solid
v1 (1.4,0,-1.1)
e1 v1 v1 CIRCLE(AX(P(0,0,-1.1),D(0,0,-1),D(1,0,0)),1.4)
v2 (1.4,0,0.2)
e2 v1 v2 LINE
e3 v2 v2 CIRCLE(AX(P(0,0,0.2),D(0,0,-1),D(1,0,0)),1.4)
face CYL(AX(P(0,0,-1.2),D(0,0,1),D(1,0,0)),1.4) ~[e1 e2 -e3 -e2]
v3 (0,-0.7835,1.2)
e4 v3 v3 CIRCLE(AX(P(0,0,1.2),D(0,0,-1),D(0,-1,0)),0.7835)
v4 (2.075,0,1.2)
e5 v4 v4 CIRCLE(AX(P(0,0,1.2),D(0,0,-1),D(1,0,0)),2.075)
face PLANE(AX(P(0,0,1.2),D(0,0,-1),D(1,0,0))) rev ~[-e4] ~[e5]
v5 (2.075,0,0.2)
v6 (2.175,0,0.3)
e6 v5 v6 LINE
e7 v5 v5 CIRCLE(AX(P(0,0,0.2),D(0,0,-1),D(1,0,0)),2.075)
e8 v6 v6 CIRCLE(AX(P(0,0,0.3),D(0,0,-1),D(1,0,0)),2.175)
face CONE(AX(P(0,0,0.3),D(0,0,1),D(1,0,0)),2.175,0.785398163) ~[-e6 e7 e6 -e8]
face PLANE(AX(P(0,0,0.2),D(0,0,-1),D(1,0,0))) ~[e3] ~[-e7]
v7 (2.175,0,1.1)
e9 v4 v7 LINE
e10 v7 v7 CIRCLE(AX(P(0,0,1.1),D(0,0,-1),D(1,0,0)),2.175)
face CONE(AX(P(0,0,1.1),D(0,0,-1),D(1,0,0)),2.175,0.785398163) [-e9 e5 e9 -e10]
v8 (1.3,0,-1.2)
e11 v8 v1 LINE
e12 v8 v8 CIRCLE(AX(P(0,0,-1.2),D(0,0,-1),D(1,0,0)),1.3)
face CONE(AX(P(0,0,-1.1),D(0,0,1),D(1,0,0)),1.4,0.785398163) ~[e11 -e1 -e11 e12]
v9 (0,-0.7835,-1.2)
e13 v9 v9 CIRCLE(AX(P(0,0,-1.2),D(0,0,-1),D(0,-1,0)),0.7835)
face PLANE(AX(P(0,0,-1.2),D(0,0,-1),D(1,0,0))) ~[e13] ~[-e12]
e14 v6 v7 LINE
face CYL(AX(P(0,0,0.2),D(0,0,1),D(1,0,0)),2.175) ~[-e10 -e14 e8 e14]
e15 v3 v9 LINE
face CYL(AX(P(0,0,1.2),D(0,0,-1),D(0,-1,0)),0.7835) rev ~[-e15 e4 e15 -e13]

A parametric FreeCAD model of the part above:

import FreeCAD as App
import Part
import Sketcher
from FreeCAD import Vector


def edges_at(feature, points):
    """Names of the edges that pass closest to the given points."""
    edges = feature.Shape.Edges
    near = lambda p: min(range(len(edges)), key=lambda i: edges[i].distToShape(Part.Vertex(*p))[0])
    return sorted({f"Edge{near(p) + 1}" for p in points})

doc = App.newDocument("Part")
body = doc.addObject("PartDesign::Body", "Body")

# Sketch on XZ plane
sketch1 = doc.addObject("Sketcher::SketchObject", "Sketch")
body.addObject(sketch1)
sketch1.AttachmentSupport = (doc.XZ_Plane, [""])
sketch1.MapMode = "FlatFace"
sketch1.addGeometry([
    Part.LineSegment(Vector(0, -1.2, 0), Vector(0, 1.2, 0)),  # 0
    Part.LineSegment(Vector(0, 1.2, 0), Vector(2.2, 1.2, 0)),  # 1
    Part.LineSegment(Vector(2.2, 1.2, 0), Vector(2.2, 0.2, 0)),  # 2
    Part.LineSegment(Vector(2.2, 0.2, 0), Vector(1.4, 0.2, 0)),  # 3
    Part.LineSegment(Vector(1.4, 0.2, 0), Vector(1.4, -1.2, 0)),  # 4
    Part.LineSegment(Vector(1.4, -1.2, 0), Vector(0, -1.2, 0)),  # 5
], False)
sketch1.addConstraint([
    Sketcher.Constraint("Coincident", 0, 2, 1, 1),
    Sketcher.Constraint("Coincident", 1, 2, 2, 1),
    Sketcher.Constraint("Coincident", 2, 2, 3, 1),
    Sketcher.Constraint("Coincident", 3, 2, 4, 1),
    Sketcher.Constraint("Coincident", 4, 2, 5, 1),
    Sketcher.Constraint("Coincident", 5, 2, 0, 1),
    Sketcher.Constraint("Vertical", 0),
    Sketcher.Constraint("Horizontal", 1),
    Sketcher.Constraint("Vertical", 2),
    Sketcher.Constraint("Horizontal", 3),
    Sketcher.Constraint("Vertical", 4),
    Sketcher.Constraint("Horizontal", 5),
    Sketcher.Constraint("Symmetric", 0, 2, 5, 2, -1, 1),
    Sketcher.Constraint("Equal", 5, 4),
    Sketcher.Constraint("DistanceY", 2, 2, 2, 1, 1.0),
    Sketcher.Constraint("DistanceX", 5, 2, 5, 1, 1.4),
    Sketcher.Constraint("DistanceX", 1, 1, 1, 2, 2.175),
])
revolution = doc.addObject("PartDesign::Revolution", "Revolution")
body.addObject(revolution)
revolution.Profile = sketch1
revolution.ReferenceAxis = (sketch1, ["V_Axis"])
revolution.Angle = 360

# Sketch on XY plane
sketch2 = doc.addObject("Sketcher::SketchObject", "Sketch001")
body.addObject(sketch2)
sketch2.AttachmentSupport = (doc.XY_Plane, [""])
sketch2.MapMode = "FlatFace"
sketch2.AttachmentOffset = App.Placement(Vector(0, 0, 1.2), App.Rotation())
sketch2.addGeometry(Part.Circle(Vector(0, 0, 0), Vector(0, 0, 1), 0.8), False)
sketch2.addConstraint([
    Sketcher.Constraint("Coincident", 0, 3, -1, 1),
    Sketcher.Constraint("Diameter", 0, 1.567),
])
doc.recompute()
hole = doc.addObject("PartDesign::Hole", "Hole")
body.addObject(hole)
hole.Profile = sketch2
hole.ThreadType = "None"
hole.Diameter = 1.567
hole.DepthType = "ThroughAll"
doc.recompute()

chamfer = doc.addObject("PartDesign::Chamfer", "Chamfer")
body.addObject(chamfer)
chamfer.Base = (hole, edges_at(hole, [(-2.175, 0, 1.2), (-2.175, 0, 0.2), (-1.4, 0, -1.2)]))
chamfer.Size = 0.1

doc.recompute()
